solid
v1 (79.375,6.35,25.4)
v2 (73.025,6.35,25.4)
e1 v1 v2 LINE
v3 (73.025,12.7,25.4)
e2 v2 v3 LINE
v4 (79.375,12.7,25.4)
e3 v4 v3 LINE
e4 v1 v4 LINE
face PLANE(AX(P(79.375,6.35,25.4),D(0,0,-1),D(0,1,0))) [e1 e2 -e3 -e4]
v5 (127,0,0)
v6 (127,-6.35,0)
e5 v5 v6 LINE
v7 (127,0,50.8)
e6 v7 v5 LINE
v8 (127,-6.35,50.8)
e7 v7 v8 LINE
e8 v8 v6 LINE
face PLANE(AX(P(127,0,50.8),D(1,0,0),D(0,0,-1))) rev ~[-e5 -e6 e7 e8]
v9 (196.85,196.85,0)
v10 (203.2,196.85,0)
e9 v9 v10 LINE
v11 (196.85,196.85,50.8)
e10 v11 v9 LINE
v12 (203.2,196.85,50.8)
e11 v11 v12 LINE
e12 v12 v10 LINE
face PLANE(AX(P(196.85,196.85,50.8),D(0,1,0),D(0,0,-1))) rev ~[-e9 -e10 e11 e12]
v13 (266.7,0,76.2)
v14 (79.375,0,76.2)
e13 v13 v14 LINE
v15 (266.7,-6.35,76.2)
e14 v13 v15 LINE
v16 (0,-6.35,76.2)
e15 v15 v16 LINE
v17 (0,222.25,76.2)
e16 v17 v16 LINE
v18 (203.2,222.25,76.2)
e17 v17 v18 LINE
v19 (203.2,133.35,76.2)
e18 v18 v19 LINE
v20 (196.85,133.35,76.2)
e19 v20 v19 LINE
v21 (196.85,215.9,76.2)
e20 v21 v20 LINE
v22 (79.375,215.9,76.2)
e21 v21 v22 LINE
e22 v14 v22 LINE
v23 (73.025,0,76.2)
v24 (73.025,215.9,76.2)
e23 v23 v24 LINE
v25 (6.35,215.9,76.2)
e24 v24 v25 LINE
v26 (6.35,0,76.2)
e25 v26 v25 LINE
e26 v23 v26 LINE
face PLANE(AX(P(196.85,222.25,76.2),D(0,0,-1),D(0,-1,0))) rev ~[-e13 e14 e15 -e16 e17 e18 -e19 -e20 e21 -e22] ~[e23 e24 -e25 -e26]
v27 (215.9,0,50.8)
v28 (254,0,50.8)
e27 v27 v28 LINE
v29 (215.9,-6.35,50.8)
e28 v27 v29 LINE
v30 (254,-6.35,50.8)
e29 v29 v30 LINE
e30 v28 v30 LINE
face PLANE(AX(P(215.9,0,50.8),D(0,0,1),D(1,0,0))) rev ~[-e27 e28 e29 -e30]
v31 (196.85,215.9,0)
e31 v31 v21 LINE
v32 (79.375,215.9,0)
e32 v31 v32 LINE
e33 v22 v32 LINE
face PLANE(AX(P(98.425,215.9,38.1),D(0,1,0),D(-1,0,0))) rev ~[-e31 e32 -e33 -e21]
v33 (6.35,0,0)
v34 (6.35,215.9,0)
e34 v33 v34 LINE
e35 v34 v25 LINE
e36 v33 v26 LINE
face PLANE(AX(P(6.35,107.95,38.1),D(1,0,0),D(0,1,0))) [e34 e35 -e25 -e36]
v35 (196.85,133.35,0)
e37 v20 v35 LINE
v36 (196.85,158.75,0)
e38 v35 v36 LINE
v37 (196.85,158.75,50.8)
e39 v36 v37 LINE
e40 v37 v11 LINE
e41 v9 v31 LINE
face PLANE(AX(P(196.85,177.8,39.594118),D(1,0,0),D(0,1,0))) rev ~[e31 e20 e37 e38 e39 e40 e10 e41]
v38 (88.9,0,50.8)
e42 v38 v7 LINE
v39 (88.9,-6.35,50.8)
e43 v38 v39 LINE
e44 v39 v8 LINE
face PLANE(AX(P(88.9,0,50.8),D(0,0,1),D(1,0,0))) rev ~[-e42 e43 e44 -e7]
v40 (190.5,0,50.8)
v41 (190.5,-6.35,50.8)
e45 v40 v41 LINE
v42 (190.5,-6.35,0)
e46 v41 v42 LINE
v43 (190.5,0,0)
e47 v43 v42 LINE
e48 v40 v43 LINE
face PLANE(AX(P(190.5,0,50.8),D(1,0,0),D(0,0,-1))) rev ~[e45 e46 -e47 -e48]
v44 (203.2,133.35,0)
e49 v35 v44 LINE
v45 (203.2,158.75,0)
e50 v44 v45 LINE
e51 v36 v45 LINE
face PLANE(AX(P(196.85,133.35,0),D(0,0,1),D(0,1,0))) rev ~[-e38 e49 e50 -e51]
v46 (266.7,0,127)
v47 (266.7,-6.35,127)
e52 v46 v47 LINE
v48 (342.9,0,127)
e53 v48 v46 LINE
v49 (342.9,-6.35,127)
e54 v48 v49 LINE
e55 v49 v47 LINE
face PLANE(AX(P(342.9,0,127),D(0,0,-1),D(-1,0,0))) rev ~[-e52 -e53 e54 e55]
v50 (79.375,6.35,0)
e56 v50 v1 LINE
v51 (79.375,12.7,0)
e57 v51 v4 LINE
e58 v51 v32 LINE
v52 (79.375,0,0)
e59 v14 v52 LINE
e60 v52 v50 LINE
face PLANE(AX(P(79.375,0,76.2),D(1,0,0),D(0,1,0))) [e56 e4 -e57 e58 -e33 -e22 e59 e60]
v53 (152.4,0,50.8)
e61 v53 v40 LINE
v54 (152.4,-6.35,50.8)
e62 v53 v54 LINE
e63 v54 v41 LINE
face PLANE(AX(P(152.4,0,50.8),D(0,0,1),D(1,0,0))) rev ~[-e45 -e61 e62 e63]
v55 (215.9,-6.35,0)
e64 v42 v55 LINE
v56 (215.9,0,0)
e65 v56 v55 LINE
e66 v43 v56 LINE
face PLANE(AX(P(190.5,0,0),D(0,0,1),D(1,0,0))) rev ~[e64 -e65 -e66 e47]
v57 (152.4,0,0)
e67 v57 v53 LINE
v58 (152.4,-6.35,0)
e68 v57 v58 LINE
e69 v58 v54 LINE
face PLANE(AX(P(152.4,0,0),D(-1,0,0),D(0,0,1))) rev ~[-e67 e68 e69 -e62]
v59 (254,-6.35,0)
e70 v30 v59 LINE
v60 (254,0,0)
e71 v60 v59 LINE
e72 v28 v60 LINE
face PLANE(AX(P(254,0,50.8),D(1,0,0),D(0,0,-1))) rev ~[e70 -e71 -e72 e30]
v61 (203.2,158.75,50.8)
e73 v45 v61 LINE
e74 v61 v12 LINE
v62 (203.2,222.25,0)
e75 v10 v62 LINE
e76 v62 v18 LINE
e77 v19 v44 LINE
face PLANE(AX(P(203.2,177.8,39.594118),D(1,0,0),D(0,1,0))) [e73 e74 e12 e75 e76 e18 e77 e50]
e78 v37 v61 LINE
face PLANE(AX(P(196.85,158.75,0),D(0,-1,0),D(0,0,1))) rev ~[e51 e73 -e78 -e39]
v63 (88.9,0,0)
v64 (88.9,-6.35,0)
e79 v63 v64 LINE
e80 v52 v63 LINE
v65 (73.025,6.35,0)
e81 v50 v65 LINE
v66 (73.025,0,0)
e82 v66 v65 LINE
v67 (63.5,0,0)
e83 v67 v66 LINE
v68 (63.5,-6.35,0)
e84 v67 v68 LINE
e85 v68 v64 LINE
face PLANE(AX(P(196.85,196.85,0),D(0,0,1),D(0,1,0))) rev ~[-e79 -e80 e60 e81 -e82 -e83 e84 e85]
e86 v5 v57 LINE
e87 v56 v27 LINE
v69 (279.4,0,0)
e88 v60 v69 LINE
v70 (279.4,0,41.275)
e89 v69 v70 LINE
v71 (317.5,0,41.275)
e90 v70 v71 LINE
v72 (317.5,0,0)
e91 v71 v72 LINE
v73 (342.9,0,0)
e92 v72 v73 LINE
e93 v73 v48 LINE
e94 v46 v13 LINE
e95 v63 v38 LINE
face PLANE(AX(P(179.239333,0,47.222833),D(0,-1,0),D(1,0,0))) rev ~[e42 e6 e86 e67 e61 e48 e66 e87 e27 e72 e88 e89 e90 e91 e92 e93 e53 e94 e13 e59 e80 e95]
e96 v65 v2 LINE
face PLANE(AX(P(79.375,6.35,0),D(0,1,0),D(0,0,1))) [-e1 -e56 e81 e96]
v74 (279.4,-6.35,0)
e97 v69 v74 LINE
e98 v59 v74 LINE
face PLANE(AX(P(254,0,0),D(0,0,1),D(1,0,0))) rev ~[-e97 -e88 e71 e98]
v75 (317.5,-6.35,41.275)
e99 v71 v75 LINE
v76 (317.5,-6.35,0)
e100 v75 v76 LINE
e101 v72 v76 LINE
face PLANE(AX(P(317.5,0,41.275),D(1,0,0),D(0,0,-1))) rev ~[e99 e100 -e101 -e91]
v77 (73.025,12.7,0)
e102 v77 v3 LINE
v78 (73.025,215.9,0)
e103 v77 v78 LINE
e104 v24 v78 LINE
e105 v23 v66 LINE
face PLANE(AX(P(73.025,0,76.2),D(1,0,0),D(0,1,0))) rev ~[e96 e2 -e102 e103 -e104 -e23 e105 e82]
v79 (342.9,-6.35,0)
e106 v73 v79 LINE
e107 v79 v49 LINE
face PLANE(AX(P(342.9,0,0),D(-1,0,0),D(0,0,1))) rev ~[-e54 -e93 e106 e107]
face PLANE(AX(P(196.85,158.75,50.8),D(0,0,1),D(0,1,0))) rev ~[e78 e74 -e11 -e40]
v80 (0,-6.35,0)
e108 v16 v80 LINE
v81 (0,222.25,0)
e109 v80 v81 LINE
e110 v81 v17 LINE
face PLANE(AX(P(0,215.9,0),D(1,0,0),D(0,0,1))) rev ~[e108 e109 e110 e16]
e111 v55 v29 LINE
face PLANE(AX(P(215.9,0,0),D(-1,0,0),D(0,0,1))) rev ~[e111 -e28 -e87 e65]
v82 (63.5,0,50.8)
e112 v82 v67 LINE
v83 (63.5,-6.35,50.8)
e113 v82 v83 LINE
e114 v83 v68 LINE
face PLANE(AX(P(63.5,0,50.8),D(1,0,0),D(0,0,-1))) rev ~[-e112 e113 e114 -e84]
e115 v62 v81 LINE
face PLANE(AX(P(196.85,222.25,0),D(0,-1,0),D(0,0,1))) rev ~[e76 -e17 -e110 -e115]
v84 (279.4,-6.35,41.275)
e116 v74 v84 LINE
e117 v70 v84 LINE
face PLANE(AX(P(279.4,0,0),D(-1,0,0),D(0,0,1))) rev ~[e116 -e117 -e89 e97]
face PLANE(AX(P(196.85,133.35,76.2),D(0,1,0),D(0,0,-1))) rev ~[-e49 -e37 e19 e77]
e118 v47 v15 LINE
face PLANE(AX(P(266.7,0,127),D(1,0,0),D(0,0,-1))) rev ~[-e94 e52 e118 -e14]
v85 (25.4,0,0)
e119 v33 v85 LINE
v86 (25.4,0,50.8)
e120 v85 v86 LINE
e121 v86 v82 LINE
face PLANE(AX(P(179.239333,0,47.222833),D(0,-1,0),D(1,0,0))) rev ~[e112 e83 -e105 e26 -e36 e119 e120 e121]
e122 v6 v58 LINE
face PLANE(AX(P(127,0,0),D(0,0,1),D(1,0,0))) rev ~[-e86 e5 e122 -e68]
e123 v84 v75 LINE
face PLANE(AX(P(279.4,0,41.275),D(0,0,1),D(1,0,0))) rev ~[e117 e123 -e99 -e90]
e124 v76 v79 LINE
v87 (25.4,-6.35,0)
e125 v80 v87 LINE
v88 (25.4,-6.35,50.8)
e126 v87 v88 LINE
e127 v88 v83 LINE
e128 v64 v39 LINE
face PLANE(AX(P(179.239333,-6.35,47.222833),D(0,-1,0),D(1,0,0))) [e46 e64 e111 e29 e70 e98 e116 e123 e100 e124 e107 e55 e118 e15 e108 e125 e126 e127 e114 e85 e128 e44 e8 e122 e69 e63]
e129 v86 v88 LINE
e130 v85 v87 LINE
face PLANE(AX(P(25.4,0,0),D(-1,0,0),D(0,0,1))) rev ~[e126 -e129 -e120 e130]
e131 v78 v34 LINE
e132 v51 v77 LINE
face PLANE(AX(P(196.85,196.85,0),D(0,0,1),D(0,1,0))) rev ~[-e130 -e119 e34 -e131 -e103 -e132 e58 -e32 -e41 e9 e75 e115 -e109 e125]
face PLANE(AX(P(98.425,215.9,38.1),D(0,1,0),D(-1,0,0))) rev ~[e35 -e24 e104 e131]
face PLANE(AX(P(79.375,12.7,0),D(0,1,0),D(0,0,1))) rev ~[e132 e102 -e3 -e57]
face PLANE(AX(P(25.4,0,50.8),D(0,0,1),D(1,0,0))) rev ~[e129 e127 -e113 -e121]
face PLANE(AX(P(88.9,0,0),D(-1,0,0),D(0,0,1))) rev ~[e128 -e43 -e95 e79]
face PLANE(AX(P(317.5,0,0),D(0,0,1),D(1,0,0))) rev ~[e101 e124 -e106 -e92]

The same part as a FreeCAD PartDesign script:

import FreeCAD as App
import Part
import Sketcher

V = App.Vector
Q = App.Units.Quantity


def add_polygon(sketch, points):
    """Adds a closed chain of lines whose ends are joined by coincident constraints."""
    first, n = sketch.GeometryCount, len(points)
    for a, b in zip(points, points[1:] + points[:1]):
        sketch.addGeometry(Part.LineSegment(App.Vector(*a, 0), App.Vector(*b, 0)), False)
    for i in range(n):
        sketch.addConstraint(Sketcher.Constraint("Coincident", first + i, 2, first + (i + 1) % n, 1))

doc = App.newDocument("Part")
body = doc.addObject("PartDesign::Body", "Body")

# Sketch on XZ plane
sketch1 = body.newObject("Sketcher::SketchObject", "Sketch")
sketch1.AttachmentSupport = (doc.getObject("XZ_Plane"), [""])
sketch1.MapMode = "FlatFace"
add_polygon(sketch1, [(0, 76), (0, 0), (25, 0), (25, 51), (64, 51), (64, 0), (89, 0), (89, 51), (127, 51), (127, 0), (152, 0), (152, 51), (190, 51), (190, 0), (216, 0), (216, 51), (254, 51), (254, 0), (279, 0), (279, 41), (318, 41), (318, 0), (343, 0), (343, 127), (267, 127), (267, 76)])  # lines 0-25
sketch1.addConstraint([
    Sketcher.Constraint("Vertical", 0),
    Sketcher.Constraint("Horizontal", 1),
    Sketcher.Constraint("Vertical", 2),
    Sketcher.Constraint("Horizontal", 3),
    Sketcher.Constraint("Vertical", 4),
    Sketcher.Constraint("Horizontal", 5),
    Sketcher.Constraint("Vertical", 6),
    Sketcher.Constraint("Horizontal", 7),
    Sketcher.Constraint("Vertical", 8),
    Sketcher.Constraint("Horizontal", 9),
    Sketcher.Constraint("Vertical", 10),
    Sketcher.Constraint("Horizontal", 11),
    Sketcher.Constraint("Vertical", 12),
    Sketcher.Constraint("Horizontal", 13),
    Sketcher.Constraint("Vertical", 14),
    Sketcher.Constraint("Horizontal", 15),
    Sketcher.Constraint("Vertical", 16),
    Sketcher.Constraint("Horizontal", 17),
    Sketcher.Constraint("Vertical", 18),
    Sketcher.Constraint("Horizontal", 19),
    Sketcher.Constraint("Vertical", 20),
    Sketcher.Constraint("Horizontal", 21),
    Sketcher.Constraint("Vertical", 22),
    Sketcher.Constraint("Horizontal", 23),
    Sketcher.Constraint("Vertical", 24),
    Sketcher.Constraint("Horizontal", 25),
    Sketcher.Constraint("Coincident", 0, 2, -1, 1),
    Sketcher.Constraint("PointOnObject", 4, 2, -1),
    Sketcher.Constraint("PointOnObject", 8, 2, -1),
    Sketcher.Constraint("PointOnObject", 12, 2, -1),
    Sketcher.Constraint("PointOnObject", 16, 2, -1),
    Sketcher.Constraint("PointOnObject", 20, 2, -1),
    Sketcher.Constraint("Horizontal", 3, 2, 6, 2),
    Sketcher.Constraint("Horizontal", 7, 2, 10, 2),
    Sketcher.Constraint("Horizontal", 11, 2, 14, 2),
    Sketcher.Constraint("Equal", 1, 5),
    Sketcher.Constraint("Equal", 3, 7),
    Sketcher.Constraint("Equal", 5, 9),
    Sketcher.Constraint("Equal", 7, 11),
    Sketcher.Constraint("Equal", 9, 13),
    Sketcher.Constraint("Equal", 11, 15),
    Sketcher.Constraint("Equal", 13, 17),
    Sketcher.Constraint("Equal", 15, 19),
    Sketcher.Constraint("Equal", 17, 21),
    Sketcher.Constraint("Equal", 23, 0),
    Sketcher.Constraint("Equal", 16, 24),
    Sketcher.Constraint("DistanceX", 1, 1, 1, 2, Q("1 in")),
    Sketcher.Constraint("DistanceX", 23, 2, 23, 1, Q("3 in")),
    Sketcher.Constraint("DistanceY", 2, 1, 2, 2, Q("2 in")),
    Sketcher.Constraint("DistanceX", 3, 1, 3, 2, Q("1.5 in")),
    Sketcher.Constraint("DistanceY", 18, 1, 18, 2, Q("1.625 in")),
])
pad1 = body.newObject("PartDesign::Pad", "Pad")
pad1.Profile = sketch1
pad1.Length = Q("0.25 in")

# Sketch on YZ plane
sketch2 = body.newObject("Sketcher::SketchObject", "Sketch001")
sketch2.AttachmentSupport = (doc.getObject("YZ_Plane"), [""])
sketch2.MapMode = "FlatFace"
add_polygon(sketch2, [(0, 76), (0, 0), (216, 0), (216, 76)])  # lines 0-3
sketch2.addConstraint([
    Sketcher.Constraint("Vertical", 0),
    Sketcher.Constraint("Horizontal", 1),
    Sketcher.Constraint("Vertical", 2),
    Sketcher.Constraint("Horizontal", 3),
    Sketcher.Constraint("Coincident", 0, 2, -1, 1),
    Sketcher.Constraint("DistanceY", 0, 2, 0, 1, Q("3 in")),
    Sketcher.Constraint("DistanceX", 1, 1, 1, 2, Q("8.5 in")),
])
pad2 = body.newObject("PartDesign::Pad", "Pad001")
pad2.Profile = sketch2
pad2.Length = Q("0.25 in")

# Sketch on XZ plane
sketch3 = body.newObject("Sketcher::SketchObject", "Sketch002")
sketch3.AttachmentSupport = (doc.getObject("XZ_Plane"), [""])
sketch3.MapMode = "FlatFace"
sketch3.AttachmentOffset = App.Placement(V(0, 0, -8.5 * 25.4), App.Rotation())
add_polygon(sketch3, [(197, 76), (197, 0), (0, 0), (0, 76)])  # lines 0-3
sketch3.addConstraint([
    Sketcher.Constraint("Vertical", 0),
    Sketcher.Constraint("Horizontal", 1),
    Sketcher.Constraint("Vertical", 2),
    Sketcher.Constraint("Horizontal", 3),
    Sketcher.Constraint("Coincident", 1, 2, -1, 1),
    Sketcher.Constraint("DistanceY", 0, 2, 0, 1, Q("3 in")),
    Sketcher.Constraint("DistanceX", 1, 2, 1, 1, Q("7.75 in")),
])
pad3 = body.newObject("PartDesign::Pad", "Pad002")
pad3.Profile = sketch3
pad3.Length = Q("0.25 in")
pad3.Reversed = True

# Sketch on YZ plane
sketch4 = body.newObject("Sketcher::SketchObject", "Sketch003")
sketch4.AttachmentSupport = (doc.getObject("YZ_Plane"), [""])
sketch4.MapMode = "FlatFace"
sketch4.AttachmentOffset = App.Placement(V(0, 0, 7.75 * 25.4), App.Rotation())
add_polygon(sketch4, [(222, 0), (222, 76), (133, 76), (133, 0), (159, 0), (159, 51), (197, 51), (197, 0)])  # lines 0-7
sketch4.addConstraint([
    Sketcher.Constraint("Vertical", 0),
    Sketcher.Constraint("Horizontal", 1),
    Sketcher.Constraint("Vertical", 2),
    Sketcher.Constraint("Horizontal", 3),
    Sketcher.Constraint("Vertical", 4),
    Sketcher.Constraint("Horizontal", 5),
    Sketcher.Constraint("Vertical", 6),
    Sketcher.Constraint("Horizontal", 7),
    Sketcher.Constraint("PointOnObject", 2, 2, -1),
    Sketcher.Constraint("PointOnObject", 6, 2, -1),
    Sketcher.Constraint("Equal", 3, 7),
    Sketcher.Constraint("DistanceX", 3, 1, 3, 2, Q("1 in")),
    Sketcher.Constraint("DistanceY", 0, 1, 0, 2, Q("3 in")),
    Sketcher.Constraint("DistanceY", 4, 1, 4, 2, Q("2 in")),
    Sketcher.Constraint("DistanceX", 1, 2, 1, 1, Q("3.5 in")),
    Sketcher.Constraint("DistanceX", -1, 1, 0, 2, Q("8.75 in")),
])
pad4 = body.newObject("PartDesign::Pad", "Pad003")
pad4.Profile = sketch4
pad4.Length = Q("0.25 in")

# Sketch on XY plane
sketch5 = body.newObject("Sketcher::SketchObject", "Sketch004")
sketch5.AttachmentSupport = (doc.getObject("XY_Plane"), [""])
sketch5.MapMode = "FlatFace"
sketch5.AttachmentOffset = App.Placement(V(0, 0, 3 * 25.4), App.Rotation())
add_polygon(sketch5, [(73, 216), (73, 0), (79, 0), (79, 216)])  # lines 0-3
sketch5.addConstraint([
    Sketcher.Constraint("Vertical", 0),
    Sketcher.Constraint("Horizontal", 1),
    Sketcher.Constraint("Vertical", 2),
    Sketcher.Constraint("Horizontal", 3),
    Sketcher.Constraint("PointOnObject", 0, 2, -1),
    Sketcher.Constraint("DistanceY", 0, 2, 0, 1, Q("8.5 in")),
    Sketcher.Constraint("DistanceX", 1, 1, 1, 2, Q("0.25 in")),
    Sketcher.Constraint("DistanceX", -1, 1, 0, 2, Q("2.875 in")),
])
pad5 = body.newObject("PartDesign::Pad", "Pad004")
pad5.Profile = sketch5
pad5.Length = Q("3 in")
pad5.Reversed = True

# Sketch on YZ plane
sketch6 = body.newObject("Sketcher::SketchObject", "Sketch005")
sketch6.AttachmentSupport = (doc.getObject("YZ_Plane"), [""])
sketch6.MapMode = "FlatFace"
sketch6.AttachmentOffset = App.Placement(V(0, 0, 3.125 * 25.4), App.Rotation())
add_polygon(sketch6, [(6, 25), (6, 0), (13, 0), (13, 25)])  # lines 0-3
sketch6.addConstraint([
    Sketcher.Constraint("Vertical", 0),
    Sketcher.Constraint("Horizontal", 1),
    Sketcher.Constraint("Vertical", 2),
    Sketcher.Constraint("Horizontal", 3),
    Sketcher.Constraint("PointOnObject", 0, 2, -1),
    Sketcher.Constraint("DistanceY", 0, 2, 0, 1, Q("1 in")),
    Sketcher.Constraint("DistanceX", 1, 1, 1, 2, Q("0.25 in")),
    Sketcher.Constraint("DistanceX", -1, 1, 1, 2, Q("0.5 in")),
])
pocket1 = body.newObject("PartDesign::Pocket", "Pocket")
pocket1.Profile = sketch6
pocket1.Length = Q("0.5 in")

doc.recompute()
